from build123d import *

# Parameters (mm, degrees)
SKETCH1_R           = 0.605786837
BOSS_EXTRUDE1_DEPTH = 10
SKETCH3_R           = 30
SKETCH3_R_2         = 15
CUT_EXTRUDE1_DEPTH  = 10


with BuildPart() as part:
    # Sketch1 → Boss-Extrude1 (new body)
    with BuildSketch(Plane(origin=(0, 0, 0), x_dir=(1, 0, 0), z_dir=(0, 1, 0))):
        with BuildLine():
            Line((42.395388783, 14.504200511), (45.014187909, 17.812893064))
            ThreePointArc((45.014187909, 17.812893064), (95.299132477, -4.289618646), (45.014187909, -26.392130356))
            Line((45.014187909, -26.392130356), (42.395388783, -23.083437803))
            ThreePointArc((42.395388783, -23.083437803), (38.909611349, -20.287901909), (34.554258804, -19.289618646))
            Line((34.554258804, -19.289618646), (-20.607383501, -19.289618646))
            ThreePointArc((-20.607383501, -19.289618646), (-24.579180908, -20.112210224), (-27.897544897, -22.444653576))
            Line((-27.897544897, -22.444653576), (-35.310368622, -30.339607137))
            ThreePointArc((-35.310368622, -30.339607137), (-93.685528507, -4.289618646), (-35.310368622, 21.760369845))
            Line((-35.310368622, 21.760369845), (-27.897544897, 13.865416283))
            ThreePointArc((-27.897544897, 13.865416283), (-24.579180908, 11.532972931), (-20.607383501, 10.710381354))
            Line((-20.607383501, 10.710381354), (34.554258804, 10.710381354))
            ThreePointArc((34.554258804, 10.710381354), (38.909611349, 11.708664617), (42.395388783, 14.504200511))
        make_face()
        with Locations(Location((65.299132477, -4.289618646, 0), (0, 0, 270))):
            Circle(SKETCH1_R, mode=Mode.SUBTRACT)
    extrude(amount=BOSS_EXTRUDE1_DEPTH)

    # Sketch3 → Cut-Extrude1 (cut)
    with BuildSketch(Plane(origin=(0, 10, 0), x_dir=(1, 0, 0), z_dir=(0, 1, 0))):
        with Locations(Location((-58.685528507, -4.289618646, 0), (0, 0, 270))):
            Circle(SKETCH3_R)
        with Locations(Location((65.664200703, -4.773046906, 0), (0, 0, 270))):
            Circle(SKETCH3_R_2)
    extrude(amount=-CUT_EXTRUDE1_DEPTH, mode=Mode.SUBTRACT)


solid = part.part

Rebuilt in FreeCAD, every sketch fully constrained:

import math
import FreeCAD as App
import Part
import Sketcher
from FreeCAD import Vector
Q = App.Units.Quantity

doc = App.newDocument("Part")
body = doc.addObject("PartDesign::Body", "Body")

# Sketch on XZ plane
sketch1 = body.newObject("Sketcher::SketchObject", "Sketch")
sketch1.AttachmentSupport = (doc.getObject("XZ_Plane"), [""])
sketch1.MapMode = "FlatFace"
sketch1.addGeometry(Part.LineSegment(Vector(45, -17.8, 0), Vector(42.4, -14.5, 0)), False)
sketch1.addGeometry(Part.ArcOfCircle(Part.Circle(Vector(34.6, -20.7, 0), Vector(0, 0, 1), 10), math.radians(38), math.radians(90)), False)
sketch1.addGeometry(Part.LineSegment(Vector(34.6, -10.7, 0), Vector(-20.6, -10.7, 0)), False)
sketch1.addGeometry(Part.ArcOfCircle(Part.Circle(Vector(-20.6, -20.7, 0), Vector(0, 0, 1), 10), math.radians(90), math.radians(137)), False)
sketch1.addGeometry(Part.LineSegment(Vector(-27.9, -13.9, 0), Vector(-35.3, -21.8, 0)), False)
sketch1.addGeometry(Part.ArcOfCircle(Part.Circle(Vector(-58.7, 4.3, 0), Vector(0, 0, 1), 35), math.radians(48), math.radians(312)), False)
sketch1.addGeometry(Part.LineSegment(Vector(-35.3, 30.3, 0), Vector(-27.9, 22.4, 0)), False)
sketch1.addGeometry(Part.ArcOfCircle(Part.Circle(Vector(-20.6, 29.3, 0), Vector(0, 0, 1), 10), math.radians(-137), math.radians(-90)), False)
sketch1.addGeometry(Part.LineSegment(Vector(-20.6, 19.3, 0), Vector(34.6, 19.3, 0)), False)
sketch1.addGeometry(Part.ArcOfCircle(Part.Circle(Vector(34.6, 29.3, 0), Vector(0, 0, 1), 10), math.radians(-90), math.radians(-38)), False)
sketch1.addGeometry(Part.LineSegment(Vector(42.4, 23.1, 0), Vector(45, 26.4, 0)), False)
sketch1.addGeometry(Part.ArcOfCircle(Part.Circle(Vector(65.3, 4.3, 0), Vector(0, 0, 1), 30), math.radians(-133), math.radians(133)), False)
sketch1.addGeometry(Part.Circle(Vector(65.3, 4.3, 0), Vector(0, 0, 1), 0.6), False)
sketch1.addConstraint(Sketcher.Constraint("Tangent", 0, 2, 1, 1))
sketch1.addConstraint(Sketcher.Constraint("Tangent", 1, 2, 2, 1))
sketch1.addConstraint(Sketcher.Constraint("Tangent", 2, 2, 3, 1))
sketch1.addConstraint(Sketcher.Constraint("Tangent", 3, 2, 4, 1))
sketch1.addConstraint(Sketcher.Constraint("Coincident", 4, 2, 5, 2))
sketch1.addConstraint(Sketcher.Constraint("Coincident", 5, 1, 6, 1))
sketch1.addConstraint(Sketcher.Constraint("Tangent", 6, 2, 7, 1))
sketch1.addConstraint(Sketcher.Constraint("Tangent", 7, 2, 8, 1))
sketch1.addConstraint(Sketcher.Constraint("Tangent", 8, 2, 9, 1))
sketch1.addConstraint(Sketcher.Constraint("Tangent", 9, 2, 10, 1))
sketch1.addConstraint(Sketcher.Constraint("Coincident", 10, 2, 11, 2))
sketch1.addConstraint(Sketcher.Constraint("Coincident", 11, 1, 0, 1))
sketch1.addConstraint(Sketcher.Constraint("Horizontal", 2))
sketch1.addConstraint(Sketcher.Constraint("Horizontal", 8))
sketch1.addConstraint(Sketcher.Constraint("Coincident", 12, 3, 11, 3))
sketch1.addConstraint(Sketcher.Constraint("Equal", 1, 3))
sketch1.addConstraint(Sketcher.Constraint("Equal", 3, 7))
sketch1.addConstraint(Sketcher.Constraint("Equal", 7, 9))
sketch1.addConstraint(Sketcher.Constraint("Horizontal", 5, 3, 11, 3))
sketch1.addConstraint(Sketcher.Constraint("Vertical", 3, 3, 7, 3))
sketch1.addConstraint(Sketcher.Constraint("Vertical", 1, 3, 9, 3))
sketch1.addConstraint(Sketcher.Constraint("Vertical", 4, 2, 5, 1))
sketch1.addConstraint(Sketcher.Constraint("Vertical", 3, 2, 6, 2))
sketch1.addConstraint(Sketcher.Constraint("Vertical", 0, 2, 9, 2))
sketch1.addConstraint(Sketcher.Constraint("Radius", 1, Q("10 mm")))
sketch1.addConstraint(Sketcher.Constraint("Radius", 5, Q("35 mm")))
sketch1.addConstraint(Sketcher.Constraint("Radius", 11, Q("30 mm")))
sketch1.addConstraint(Sketcher.Constraint("DistanceY", 3, 3, 5, 3, Q("25 mm")))
sketch1.addConstraint(Sketcher.Constraint("Diameter", 12, Q("1.211574 mm")))
sketch1.addConstraint(Sketcher.Constraint("Distance", 4, Q("10.829601 mm")))
sketch1.addConstraint(Sketcher.Constraint("DistanceY", 0, 2, -1, 1, Q("14.504201 mm")))
sketch1.addConstraint(Sketcher.Constraint("DistanceX", 9, 2, 10, 2, Q("2.618799 mm")))
sketch1.addConstraint(Sketcher.Constraint("DistanceX", 2, 2, 2, 1, Q("55.161642 mm")))
sketch1.addConstraint(Sketcher.Constraint("DistanceX", -1, 1, 1, 3, Q("34.554259 mm")))
sketch1.addConstraint(Sketcher.Constraint("DistanceY", 1, 3, -1, 1, Q("20.710381 mm")))
sketch1.addConstraint(Sketcher.Constraint("DistanceX", 5, 3, -1, 1, Q("58.685529 mm")))
pad1 = body.newObject("PartDesign::Pad", "Pad")
pad1.Profile = sketch1
pad1.Length = 10
pad1.Reversed = True

# Sketch on XZ plane
sketch2 = body.newObject("Sketcher::SketchObject", "Sketch001")
sketch2.AttachmentSupport = (doc.getObject("XZ_Plane"), [""])
sketch2.MapMode = "FlatFace"
sketch2.AttachmentOffset = App.Placement(Vector(0, 0, -10), App.Rotation())
sketch2.addGeometry(Part.Circle(Vector(-59, 4, 0), Vector(0, 0, 1), 30), False)
sketch2.addGeometry(Part.Circle(Vector(66, 5, 0), Vector(0, 0, 1), 15), False)
sketch2.addConstraint(Sketcher.Constraint("Diameter", 0, Q("60 mm")))
sketch2.addConstraint(Sketcher.Constraint("Diameter", 1, Q("30 mm")))
sketch2.addConstraint(Sketcher.Constraint("DistanceX", -1, 1, 1, 3, Q("65.664201 mm")))
sketch2.addConstraint(Sketcher.Constraint("DistanceX", 0, 3, -1, 1, Q("58.685529 mm")))
sketch2.addConstraint(Sketcher.Constraint("DistanceY", -1, 1, 0, 3, Q("4.289619 mm")))
sketch2.addConstraint(Sketcher.Constraint("DistanceY", 0, 3, 1, 3, Q("0.483428 mm")))
pocket1 = body.newObject("PartDesign::Pocket", "Pocket")
pocket1.Profile = sketch2
pocket1.Length = 10
pocket1.Reversed = True

doc.recompute()
